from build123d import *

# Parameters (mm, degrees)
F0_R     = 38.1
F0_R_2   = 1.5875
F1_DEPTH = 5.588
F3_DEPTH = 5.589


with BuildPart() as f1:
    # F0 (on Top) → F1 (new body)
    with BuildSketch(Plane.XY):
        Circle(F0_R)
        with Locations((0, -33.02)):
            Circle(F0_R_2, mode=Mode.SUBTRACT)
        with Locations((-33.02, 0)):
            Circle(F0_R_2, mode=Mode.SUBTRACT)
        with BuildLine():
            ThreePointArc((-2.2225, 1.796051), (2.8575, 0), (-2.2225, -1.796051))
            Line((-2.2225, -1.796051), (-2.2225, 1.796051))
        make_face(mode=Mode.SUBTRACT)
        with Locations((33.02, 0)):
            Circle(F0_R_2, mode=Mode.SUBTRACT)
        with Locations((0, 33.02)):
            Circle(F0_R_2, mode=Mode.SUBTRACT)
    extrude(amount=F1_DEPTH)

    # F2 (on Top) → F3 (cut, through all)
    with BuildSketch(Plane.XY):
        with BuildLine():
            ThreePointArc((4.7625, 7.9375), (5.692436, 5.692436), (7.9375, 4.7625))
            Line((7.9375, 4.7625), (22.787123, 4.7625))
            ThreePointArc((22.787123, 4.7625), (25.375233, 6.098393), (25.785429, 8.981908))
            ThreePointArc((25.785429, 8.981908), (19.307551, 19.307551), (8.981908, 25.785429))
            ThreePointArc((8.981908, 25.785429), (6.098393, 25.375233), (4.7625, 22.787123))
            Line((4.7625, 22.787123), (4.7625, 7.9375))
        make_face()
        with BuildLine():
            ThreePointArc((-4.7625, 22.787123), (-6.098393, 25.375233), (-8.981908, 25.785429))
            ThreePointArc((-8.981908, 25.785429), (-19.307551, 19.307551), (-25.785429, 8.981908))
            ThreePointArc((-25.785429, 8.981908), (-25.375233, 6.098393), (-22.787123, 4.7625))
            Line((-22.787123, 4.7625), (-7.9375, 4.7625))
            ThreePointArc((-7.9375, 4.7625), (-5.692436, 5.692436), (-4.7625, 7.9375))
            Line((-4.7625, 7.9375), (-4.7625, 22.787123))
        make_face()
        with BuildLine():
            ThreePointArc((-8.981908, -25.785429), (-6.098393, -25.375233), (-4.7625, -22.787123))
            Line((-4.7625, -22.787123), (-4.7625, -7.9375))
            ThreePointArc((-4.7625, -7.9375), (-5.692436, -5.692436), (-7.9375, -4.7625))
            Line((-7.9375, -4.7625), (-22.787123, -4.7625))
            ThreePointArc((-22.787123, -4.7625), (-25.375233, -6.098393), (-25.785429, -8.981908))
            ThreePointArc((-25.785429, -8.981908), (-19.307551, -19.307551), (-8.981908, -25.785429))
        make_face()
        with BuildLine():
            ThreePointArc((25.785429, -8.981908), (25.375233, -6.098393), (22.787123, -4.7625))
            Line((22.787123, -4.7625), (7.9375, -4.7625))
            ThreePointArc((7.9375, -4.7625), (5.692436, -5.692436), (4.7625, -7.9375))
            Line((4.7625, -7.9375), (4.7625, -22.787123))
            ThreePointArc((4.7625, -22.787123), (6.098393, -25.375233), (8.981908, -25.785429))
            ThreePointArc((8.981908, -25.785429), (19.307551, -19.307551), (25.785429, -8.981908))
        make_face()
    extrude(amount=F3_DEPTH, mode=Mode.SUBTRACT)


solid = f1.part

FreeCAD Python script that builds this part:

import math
import FreeCAD as App
import Part
import Sketcher

V = App.Vector
Q = App.Units.Quantity

doc = App.newDocument("Part")
params = doc.addObject("Spreadsheet::Sheet", "Params")
for row, (alias, value) in enumerate([
    ("sketch1_diameter", "3 in"),
    ("sketch1_diameter2", "0.125 in"),
    ("pad1_length", "0.22 in"),
    ("sketch2_radius", "0.125 in"),
], start=1):
    params.set(f"A{row}", alias)
    params.set(f"B{row}", "=" + value)
    params.setAlias(f"B{row}", alias)

body = doc.addObject("PartDesign::Body", "Body")

sketch1 = body.newObject("Sketcher::SketchObject", "Sketch")
sketch1.AttachmentSupport = (doc.getObject("XY_Plane"), [""])
sketch1.MapMode = "FlatFace"
sketch1.addGeometry([
    Part.Circle(V(0, 0, 0), V(0, 0, 1), 38.1),
    Part.Circle(V(0, -33, 0), V(0, 0, 1), 1.6),
    Part.Circle(V(-33, 0, 0), V(0, 0, 1), 1.6),
    Part.LineSegment(V(-2.2, -1.8, 0), V(-2.2, 1.8, 0)),
    Part.ArcOfCircle(Part.Circle(V(0, 0, 0), V(0, 0, 1), 2.9), math.radians(-141), math.radians(141)),
    Part.Circle(V(33, 0, 0), V(0, 0, 1), 1.6),
    Part.Circle(V(0, 33, 0), V(0, 0, 1), 1.6),
], False)
sketch1.addConstraint([
    Sketcher.Constraint("Coincident", 3, 1, 4, 1),
    Sketcher.Constraint("Coincident", 4, 2, 3, 2),
    Sketcher.Constraint("Vertical", 3),
    Sketcher.Constraint("Coincident", 0, 3, -1, 1),
    Sketcher.Constraint("Coincident", 4, 3, -1, 1),
    Sketcher.Constraint("Equal", 1, 2),
    Sketcher.Constraint("Equal", 2, 5),
    Sketcher.Constraint("Equal", 5, 6),
    Sketcher.Constraint("Symmetric", 2, 3, 5, 3, -1, 1),
    Sketcher.Constraint("Symmetric", 1, 3, 6, 3, -1, 1),
    Sketcher.Constraint("PointOnObject", 1, 3, -2),
    Sketcher.Constraint("PointOnObject", 2, 3, -1),
    Sketcher.Constraint("Diameter", 0, Q("3 in")),
    Sketcher.Constraint("Diameter", 1, Q("0.125 in")),
    Sketcher.Constraint("DistanceY", 1, 3, -1, 1, Q("1.3 in")),
    Sketcher.Constraint("DistanceX", 2, 3, -1, 1, Q("1.3 in")),
    Sketcher.Constraint("Radius", 4, Q("0.1125 in")),
    Sketcher.Constraint("DistanceX", 3, 1, -1, 1, Q("0.0875 in")),
])
sketch1.setExpression("Constraints[12]", "Params.sketch1_diameter")
sketch1.setExpression("Constraints[13]", "Params.sketch1_diameter2")
pad1 = body.newObject("PartDesign::Pad", "Pad")
pad1.Profile = sketch1
pad1.setExpression("Length", "Params.pad1_length")

sketch2 = body.newObject("Sketcher::SketchObject", "Sketch001")
sketch2.AttachmentSupport = (doc.getObject("XY_Plane"), [""])
sketch2.MapMode = "FlatFace"
sketch2.addGeometry([
    Part.ArcOfCircle(Part.Circle(V(7.9, 7.9, 0), V(0, 0, 1), 3.2), math.radians(-180), math.radians(-90)),
    Part.LineSegment(V(7.9, 4.8, 0), V(22.8, 4.8, 0)),
    Part.ArcOfCircle(Part.Circle(V(22.8, 7.9, 0), V(0, 0, 1), 3.2), math.radians(-90), math.radians(19)),
    Part.ArcOfCircle(Part.Circle(V(0, 0, 0), V(0, 0, 1), 27.3), math.radians(19), math.radians(71)),
    Part.ArcOfCircle(Part.Circle(V(7.9, 22.8, 0), V(0, 0, 1), 3.2), math.radians(71), math.radians(180)),
    Part.LineSegment(V(4.8, 22.8, 0), V(4.8, 7.9, 0)),
    Part.ArcOfCircle(Part.Circle(V(-7.9, 22.8, 0), V(0, 0, 1), 3.2), math.radians(0), math.radians(109)),
    Part.ArcOfCircle(Part.Circle(V(0, 0, 0), V(0, 0, 1), 27.3), math.radians(109), math.radians(161)),
    Part.ArcOfCircle(Part.Circle(V(-22.8, 7.9, 0), V(0, 0, 1), 3.2), math.radians(161), math.radians(270)),
    Part.LineSegment(V(-22.8, 4.8, 0), V(-7.9, 4.8, 0)),
    Part.ArcOfCircle(Part.Circle(V(-7.9, 7.9, 0), V(0, 0, 1), 3.2), math.radians(-90), math.radians(0)),
    Part.LineSegment(V(-4.8, 7.9, 0), V(-4.8, 22.8, 0)),
    Part.ArcOfCircle(Part.Circle(V(-7.9, -22.8, 0), V(0, 0, 1), 3.2), math.radians(-109), math.radians(0)),
    Part.LineSegment(V(-4.8, -22.8, 0), V(-4.8, -7.9, 0)),
    Part.ArcOfCircle(Part.Circle(V(-7.9, -7.9, 0), V(0, 0, 1), 3.2), math.radians(0), math.radians(90)),
    Part.LineSegment(V(-7.9, -4.8, 0), V(-22.8, -4.8, 0)),
    Part.ArcOfCircle(Part.Circle(V(-22.8, -7.9, 0), V(0, 0, 1), 3.2), math.radians(90), math.radians(199)),
    Part.ArcOfCircle(Part.Circle(V(0, 0, 0), V(0, 0, 1), 27.3), math.radians(-161), math.radians(-109)),
    Part.ArcOfCircle(Part.Circle(V(22.8, -7.9, 0), V(0, 0, 1), 3.2), math.radians(-19), math.radians(90)),
    Part.LineSegment(V(22.8, -4.8, 0), V(7.9, -4.8, 0)),
    Part.ArcOfCircle(Part.Circle(V(7.9, -7.9, 0), V(0, 0, 1), 3.2), math.radians(90), math.radians(180)),
    Part.LineSegment(V(4.8, -7.9, 0), V(4.8, -22.8, 0)),
    Part.ArcOfCircle(Part.Circle(V(7.9, -22.8, 0), V(0, 0, 1), 3.2), math.radians(180), math.radians(289)),
    Part.ArcOfCircle(Part.Circle(V(0, 0, 0), V(0, 0, 1), 27.3), math.radians(-71), math.radians(-19)),
], False)
sketch2.addConstraint([
    Sketcher.Constraint("Tangent", 0, 2, 1, 1),
    Sketcher.Constraint("Tangent", 1, 2, 2, 1),
    Sketcher.Constraint("Tangent", 2, 2, 3, 1),
    Sketcher.Constraint("Tangent", 3, 2, 4, 1),
    Sketcher.Constraint("Tangent", 4, 2, 5, 1),
    Sketcher.Constraint("Tangent", 5, 2, 0, 1),
    Sketcher.Constraint("Tangent", 6, 2, 7, 1),
    Sketcher.Constraint("Tangent", 7, 2, 8, 1),
    Sketcher.Constraint("Tangent", 8, 2, 9, 1),
    Sketcher.Constraint("Tangent", 9, 2, 10, 1),
    Sketcher.Constraint("Tangent", 10, 2, 11, 1),
    Sketcher.Constraint("Tangent", 11, 2, 6, 1),
    Sketcher.Constraint("Tangent", 12, 2, 13, 1),
    Sketcher.Constraint("Tangent", 13, 2, 14, 1),
    Sketcher.Constraint("Tangent", 14, 2, 15, 1),
    Sketcher.Constraint("Tangent", 15, 2, 16, 1),
    Sketcher.Constraint("Tangent", 16, 2, 17, 1),
    Sketcher.Constraint("Tangent", 17, 2, 12, 1),
    Sketcher.Constraint("Tangent", 18, 2, 19, 1),
    Sketcher.Constraint("Tangent", 19, 2, 20, 1),
    Sketcher.Constraint("Tangent", 20, 2, 21, 1),
    Sketcher.Constraint("Tangent", 21, 2, 22, 1),
    Sketcher.Constraint("Tangent", 22, 2, 23, 1),
    Sketcher.Constraint("Tangent", 23, 2, 18, 1),
    Sketcher.Constraint("Horizontal", 1),
    Sketcher.Constraint("Vertical", 5),
    Sketcher.Constraint("Horizontal", 9),
    Sketcher.Constraint("Vertical", 11),
    Sketcher.Constraint("Vertical", 13),
    Sketcher.Constraint("Horizontal", 15),
    Sketcher.Constraint("Horizontal", 19),
    Sketcher.Constraint("Vertical", 21),
    Sketcher.Constraint("Coincident", 3, 3, -1, 1),
    Sketcher.Constraint("Coincident", 7, 3, -1, 1),
    Sketcher.Constraint("Coincident", 17, 3, -1, 1),
    Sketcher.Constraint("Coincident", 23, 3, -1, 1),
    Sketcher.Constraint("Equal", 0, 2),
    Sketcher.Constraint("Equal", 2, 4),
    Sketcher.Constraint("Equal", 4, 6),
    Sketcher.Constraint("Equal", 3, 7),
    Sketcher.Constraint("Equal", 6, 8),
    Sketcher.Constraint("Equal", 8, 10),
    Sketcher.Constraint("Equal", 10, 12),
    Sketcher.Constraint("Equal", 12, 14),
    Sketcher.Constraint("Equal", 14, 16),
    Sketcher.Constraint("Equal", 7, 17),
    Sketcher.Constraint("Equal", 16, 18),
    Sketcher.Constraint("Equal", 18, 20),
    Sketcher.Constraint("Equal", 20, 22),
    Sketcher.Constraint("Equal", 17, 23),
    Sketcher.Constraint("Symmetric", 0, 3, 14, 3, -1, 1),
    Sketcher.Constraint("Symmetric", 10, 3, 20, 3, -1, 1),
    Sketcher.Constraint("Symmetric", 0, 3, 10, 3, -2),
    Sketcher.Constraint("Equal", 19, 5),
    Sketcher.Constraint("Radius", 0, Q("0.125 in")),
    Sketcher.Constraint("DistanceY", 18, 3, 1, 2, Q("0.5 in")),
    Sketcher.Constraint("Radius", 3, Q("27.304995 mm")),
])
sketch2.setExpression("Constraints[54]", "Params.sketch2_radius")
pocket1 = body.newObject("PartDesign::Pocket", "Pocket")
pocket1.Profile = sketch2
pocket1.Type = "ThroughAll"
pocket1.Reversed = True

doc.recompute()
